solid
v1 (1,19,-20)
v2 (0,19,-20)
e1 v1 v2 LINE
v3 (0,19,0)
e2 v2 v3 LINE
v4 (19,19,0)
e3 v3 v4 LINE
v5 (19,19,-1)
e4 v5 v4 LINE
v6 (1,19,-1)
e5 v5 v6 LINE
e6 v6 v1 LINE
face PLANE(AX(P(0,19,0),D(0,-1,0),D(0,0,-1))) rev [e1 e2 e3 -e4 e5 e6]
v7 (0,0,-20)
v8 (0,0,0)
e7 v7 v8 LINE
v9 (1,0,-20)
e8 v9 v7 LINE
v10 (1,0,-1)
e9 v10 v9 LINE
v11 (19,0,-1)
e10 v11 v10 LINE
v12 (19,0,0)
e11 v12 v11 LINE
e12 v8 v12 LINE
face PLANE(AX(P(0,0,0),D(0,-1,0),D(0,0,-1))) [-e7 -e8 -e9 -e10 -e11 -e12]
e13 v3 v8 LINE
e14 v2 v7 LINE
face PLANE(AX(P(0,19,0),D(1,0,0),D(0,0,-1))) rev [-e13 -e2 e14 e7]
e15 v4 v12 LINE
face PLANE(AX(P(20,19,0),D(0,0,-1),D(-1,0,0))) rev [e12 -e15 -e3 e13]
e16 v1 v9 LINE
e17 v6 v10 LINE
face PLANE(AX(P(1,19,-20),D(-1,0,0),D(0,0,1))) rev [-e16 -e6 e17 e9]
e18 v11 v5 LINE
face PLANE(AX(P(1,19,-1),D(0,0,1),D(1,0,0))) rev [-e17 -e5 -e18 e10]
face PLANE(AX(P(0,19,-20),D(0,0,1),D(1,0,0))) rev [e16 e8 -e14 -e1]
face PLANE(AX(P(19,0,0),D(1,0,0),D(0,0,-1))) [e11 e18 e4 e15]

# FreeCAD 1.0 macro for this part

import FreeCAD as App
import Part
import Sketcher

V = App.Vector

doc = App.newDocument("Part")
params = doc.addObject("Spreadsheet::Sheet", "Params")
for row, (alias, value) in enumerate([
    ("sketch1_width", "20 mm"),
    ("sketch1_width2", "19 mm"),
    ("pad1_length", "19 mm"),
    ("sketch2_width", "19 mm"),
    ("sketch2_height", "1 mm"),
    ("pocket1_length", "1 mm"),
], start=1):
    params.set(f"A{row}", alias)
    params.set(f"B{row}", "=" + value)
    params.setAlias(f"B{row}", alias)

body = doc.addObject("PartDesign::Body", "Body")

# Sketch on XZ plane
sketch1 = body.newObject("Sketcher::SketchObject", "Sketch")
sketch1.AttachmentSupport = (doc.getObject("XZ_Plane"), [""])
sketch1.MapMode = "FlatFace"
sketch1.addGeometry([
    Part.LineSegment(V(0, -20, 0), V(0, 0, 0)),  # 0
    Part.LineSegment(V(0, 0, 0), V(20, 0, 0)),  # 1
    Part.LineSegment(V(20, 0, 0), V(20, -1, 0)),  # 2
    Part.LineSegment(V(20, -1, 0), V(1, -1, 0)),  # 3
    Part.LineSegment(V(1, -1, 0), V(1, -20, 0)),  # 4
    Part.LineSegment(V(1, -20, 0), V(0, -20, 0)),  # 5
], False)
sketch1.addConstraint([
    Sketcher.Constraint("Coincident", 0, 2, 1, 1),
    Sketcher.Constraint("Coincident", 1, 2, 2, 1),
    Sketcher.Constraint("Coincident", 2, 2, 3, 1),
    Sketcher.Constraint("Coincident", 3, 2, 4, 1),
    Sketcher.Constraint("Coincident", 4, 2, 5, 1),
    Sketcher.Constraint("Coincident", 5, 2, 0, 1),
    Sketcher.Constraint("Vertical", 0),
    Sketcher.Constraint("Horizontal", 1),
    Sketcher.Constraint("Vertical", 2),
    Sketcher.Constraint("Horizontal", 3),
    Sketcher.Constraint("Vertical", 4),
    Sketcher.Constraint("Horizontal", 5),
    Sketcher.Constraint("Coincident", 0, 2, -1, 1),
    Sketcher.Constraint("Equal", 1, 0),
    Sketcher.Constraint("Equal", 5, 2),
    Sketcher.Constraint("DistanceX", 1, 1, 1, 2, 20.0),
    Sketcher.Constraint("DistanceX", 3, 2, 3, 1, 19.0),
])
sketch1.setExpression("Constraints[15]", "Params.sketch1_width")
sketch1.setExpression("Constraints[16]", "Params.sketch1_width2")
pad1 = body.newObject("PartDesign::Pad", "Pad")
pad1.Profile = sketch1
pad1.setExpression("Length", "Params.pad1_length")
pad1.Reversed = True

# Sketch on YZ plane
sketch2 = body.newObject("Sketcher::SketchObject", "Sketch001")
sketch2.AttachmentSupport = (doc.getObject("YZ_Plane"), [""])
sketch2.MapMode = "FlatFace"
sketch2.AttachmentOffset = App.Placement(V(0, 0, 20), App.Rotation())
sketch2.addGeometry([
    Part.LineSegment(V(19, 0, 0), V(0, 0, 0)),
    Part.LineSegment(V(0, 0, 0), V(0, -1, 0)),
    Part.LineSegment(V(0, -1, 0), V(19, -1, 0)),
    Part.LineSegment(V(19, -1, 0), V(19, 0, 0)),
], False)
sketch2.addConstraint([
    Sketcher.Constraint("Coincident", 0, 2, 1, 1),
    Sketcher.Constraint("Coincident", 1, 2, 2, 1),
    Sketcher.Constraint("Coincident", 2, 2, 3, 1),
    Sketcher.Constraint("Coincident", 3, 2, 0, 1),
    Sketcher.Constraint("Horizontal", 0),
    Sketcher.Constraint("Vertical", 1),
    Sketcher.Constraint("Horizontal", 2),
    Sketcher.Constraint("Vertical", 3),
    Sketcher.Constraint("Coincident", 0, 2, -1, 1),
    Sketcher.Constraint("DistanceX", 0, 2, 0, 1, 19.0),
    Sketcher.Constraint("DistanceY", 1, 2, 1, 1, 1.0),
])
sketch2.setExpression("Constraints[9]", "Params.sketch2_width")
sketch2.setExpression("Constraints[10]", "Params.sketch2_height")
pocket1 = body.newObject("PartDesign::Pocket", "Pocket")
pocket1.Profile = sketch2
pocket1.setExpression("Length", "Params.pocket1_length")

doc.recompute()
